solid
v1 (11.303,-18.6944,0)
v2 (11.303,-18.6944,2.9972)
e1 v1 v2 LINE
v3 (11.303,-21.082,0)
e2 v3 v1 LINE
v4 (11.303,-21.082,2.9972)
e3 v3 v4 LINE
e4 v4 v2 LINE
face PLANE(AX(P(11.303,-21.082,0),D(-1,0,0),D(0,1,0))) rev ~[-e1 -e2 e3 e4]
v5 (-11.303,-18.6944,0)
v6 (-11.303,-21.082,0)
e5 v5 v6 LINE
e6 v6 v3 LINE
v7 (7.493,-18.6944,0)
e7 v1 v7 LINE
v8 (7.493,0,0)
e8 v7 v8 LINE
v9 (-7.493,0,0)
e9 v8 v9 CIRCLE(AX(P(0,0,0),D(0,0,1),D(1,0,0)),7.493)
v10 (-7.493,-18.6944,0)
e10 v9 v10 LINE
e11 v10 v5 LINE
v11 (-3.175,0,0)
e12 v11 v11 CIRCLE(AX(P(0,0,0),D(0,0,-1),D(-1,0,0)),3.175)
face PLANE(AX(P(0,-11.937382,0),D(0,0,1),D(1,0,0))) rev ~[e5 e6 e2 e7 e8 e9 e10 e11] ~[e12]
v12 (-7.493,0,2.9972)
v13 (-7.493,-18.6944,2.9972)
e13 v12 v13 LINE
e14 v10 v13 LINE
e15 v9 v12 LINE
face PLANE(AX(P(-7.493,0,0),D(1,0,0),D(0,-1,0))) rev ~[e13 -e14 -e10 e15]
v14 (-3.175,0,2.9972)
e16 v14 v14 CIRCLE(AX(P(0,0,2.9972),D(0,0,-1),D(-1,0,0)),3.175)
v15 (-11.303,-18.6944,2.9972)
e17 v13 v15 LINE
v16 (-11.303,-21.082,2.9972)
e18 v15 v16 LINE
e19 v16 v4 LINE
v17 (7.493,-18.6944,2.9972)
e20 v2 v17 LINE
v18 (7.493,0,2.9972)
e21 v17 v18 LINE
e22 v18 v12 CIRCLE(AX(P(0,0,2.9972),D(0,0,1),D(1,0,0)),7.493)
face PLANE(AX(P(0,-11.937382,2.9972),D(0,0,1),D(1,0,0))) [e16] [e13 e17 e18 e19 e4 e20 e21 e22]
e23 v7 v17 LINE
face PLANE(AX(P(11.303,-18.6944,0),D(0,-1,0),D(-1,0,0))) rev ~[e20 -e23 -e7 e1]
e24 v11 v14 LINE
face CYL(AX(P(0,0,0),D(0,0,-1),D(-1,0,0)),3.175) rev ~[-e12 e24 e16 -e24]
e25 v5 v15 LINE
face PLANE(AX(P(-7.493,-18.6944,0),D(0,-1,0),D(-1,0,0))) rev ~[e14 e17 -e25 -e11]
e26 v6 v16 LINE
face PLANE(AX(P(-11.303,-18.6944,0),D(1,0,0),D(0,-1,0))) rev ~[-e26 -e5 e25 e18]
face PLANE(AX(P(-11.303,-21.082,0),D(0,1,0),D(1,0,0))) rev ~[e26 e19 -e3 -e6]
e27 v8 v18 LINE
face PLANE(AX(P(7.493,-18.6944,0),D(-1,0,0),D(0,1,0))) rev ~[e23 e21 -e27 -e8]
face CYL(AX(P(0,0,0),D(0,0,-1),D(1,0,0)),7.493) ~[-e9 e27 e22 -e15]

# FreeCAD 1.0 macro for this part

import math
import FreeCAD as App
import Part
import Sketcher

V = App.Vector
Q = App.Units.Quantity

doc = App.newDocument("Part")
body = doc.addObject("PartDesign::Body", "Body")

# Sketch on XY plane
sketch1 = body.newObject("Sketcher::SketchObject", "Sketch")
sketch1.AttachmentSupport = (doc.getObject("XY_Plane"), [""])
sketch1.MapMode = "FlatFace"
sketch1.addGeometry([
    Part.LineSegment(V(-7.5, 0, 0), V(-7.5, -18.7, 0)),  # 0
    Part.LineSegment(V(-7.5, -18.7, 0), V(-11.3, -18.7, 0)),  # 1
    Part.LineSegment(V(-11.3, -18.7, 0), V(-11.3, -21.1, 0)),  # 2
    Part.LineSegment(V(-11.3, -21.1, 0), V(11.3, -21.1, 0)),  # 3
    Part.LineSegment(V(11.3, -21.1, 0), V(11.3, -18.7, 0)),  # 4
    Part.LineSegment(V(11.3, -18.7, 0), V(7.5, -18.7, 0)),  # 5
    Part.LineSegment(V(7.5, -18.7, 0), V(7.5, 0, 0)),  # 6
    Part.ArcOfCircle(Part.Circle(V(0, 0, 0), V(0, 0, 1), 7.5), math.radians(0), math.radians(180)),  # 7
    Part.Circle(V(0, 0, 0), V(0, 0, 1), 3.2),  # 8
], False)
sketch1.addConstraint([
    Sketcher.Constraint("Coincident", 0, 2, 1, 1),
    Sketcher.Constraint("Coincident", 1, 2, 2, 1),
    Sketcher.Constraint("Coincident", 2, 2, 3, 1),
    Sketcher.Constraint("Coincident", 3, 2, 4, 1),
    Sketcher.Constraint("Coincident", 4, 2, 5, 1),
    Sketcher.Constraint("Coincident", 5, 2, 6, 1),
    Sketcher.Constraint("Tangent", 6, 2, 7, 1),
    Sketcher.Constraint("Tangent", 7, 2, 0, 1),
    Sketcher.Constraint("Vertical", 0),
    Sketcher.Constraint("Horizontal", 1),
    Sketcher.Constraint("Vertical", 2),
    Sketcher.Constraint("Horizontal", 3),
    Sketcher.Constraint("Vertical", 4),
    Sketcher.Constraint("Horizontal", 5),
    Sketcher.Constraint("Vertical", 6),
    Sketcher.Constraint("Coincident", 7, 3, -1, 1),
    Sketcher.Constraint("Coincident", 8, 3, -1, 1),
    Sketcher.Constraint("Symmetric", 1, 2, 4, 2, -2),
    Sketcher.Constraint("Diameter", 8, Q("0.25 in")),
    Sketcher.Constraint("Radius", 7, Q("0.295 in")),
    Sketcher.Constraint("DistanceX", 1, 2, 1, 1, Q("0.15 in")),
    Sketcher.Constraint("DistanceY", 0, 2, 0, 1, Q("0.736 in")),
    Sketcher.Constraint("DistanceY", 2, 2, 2, 1, Q("0.094 in")),
])
pad1 = body.newObject("PartDesign::Pad", "Pad")
pad1.Profile = sketch1
pad1.Length = Q("0.118 in")

doc.recompute()
